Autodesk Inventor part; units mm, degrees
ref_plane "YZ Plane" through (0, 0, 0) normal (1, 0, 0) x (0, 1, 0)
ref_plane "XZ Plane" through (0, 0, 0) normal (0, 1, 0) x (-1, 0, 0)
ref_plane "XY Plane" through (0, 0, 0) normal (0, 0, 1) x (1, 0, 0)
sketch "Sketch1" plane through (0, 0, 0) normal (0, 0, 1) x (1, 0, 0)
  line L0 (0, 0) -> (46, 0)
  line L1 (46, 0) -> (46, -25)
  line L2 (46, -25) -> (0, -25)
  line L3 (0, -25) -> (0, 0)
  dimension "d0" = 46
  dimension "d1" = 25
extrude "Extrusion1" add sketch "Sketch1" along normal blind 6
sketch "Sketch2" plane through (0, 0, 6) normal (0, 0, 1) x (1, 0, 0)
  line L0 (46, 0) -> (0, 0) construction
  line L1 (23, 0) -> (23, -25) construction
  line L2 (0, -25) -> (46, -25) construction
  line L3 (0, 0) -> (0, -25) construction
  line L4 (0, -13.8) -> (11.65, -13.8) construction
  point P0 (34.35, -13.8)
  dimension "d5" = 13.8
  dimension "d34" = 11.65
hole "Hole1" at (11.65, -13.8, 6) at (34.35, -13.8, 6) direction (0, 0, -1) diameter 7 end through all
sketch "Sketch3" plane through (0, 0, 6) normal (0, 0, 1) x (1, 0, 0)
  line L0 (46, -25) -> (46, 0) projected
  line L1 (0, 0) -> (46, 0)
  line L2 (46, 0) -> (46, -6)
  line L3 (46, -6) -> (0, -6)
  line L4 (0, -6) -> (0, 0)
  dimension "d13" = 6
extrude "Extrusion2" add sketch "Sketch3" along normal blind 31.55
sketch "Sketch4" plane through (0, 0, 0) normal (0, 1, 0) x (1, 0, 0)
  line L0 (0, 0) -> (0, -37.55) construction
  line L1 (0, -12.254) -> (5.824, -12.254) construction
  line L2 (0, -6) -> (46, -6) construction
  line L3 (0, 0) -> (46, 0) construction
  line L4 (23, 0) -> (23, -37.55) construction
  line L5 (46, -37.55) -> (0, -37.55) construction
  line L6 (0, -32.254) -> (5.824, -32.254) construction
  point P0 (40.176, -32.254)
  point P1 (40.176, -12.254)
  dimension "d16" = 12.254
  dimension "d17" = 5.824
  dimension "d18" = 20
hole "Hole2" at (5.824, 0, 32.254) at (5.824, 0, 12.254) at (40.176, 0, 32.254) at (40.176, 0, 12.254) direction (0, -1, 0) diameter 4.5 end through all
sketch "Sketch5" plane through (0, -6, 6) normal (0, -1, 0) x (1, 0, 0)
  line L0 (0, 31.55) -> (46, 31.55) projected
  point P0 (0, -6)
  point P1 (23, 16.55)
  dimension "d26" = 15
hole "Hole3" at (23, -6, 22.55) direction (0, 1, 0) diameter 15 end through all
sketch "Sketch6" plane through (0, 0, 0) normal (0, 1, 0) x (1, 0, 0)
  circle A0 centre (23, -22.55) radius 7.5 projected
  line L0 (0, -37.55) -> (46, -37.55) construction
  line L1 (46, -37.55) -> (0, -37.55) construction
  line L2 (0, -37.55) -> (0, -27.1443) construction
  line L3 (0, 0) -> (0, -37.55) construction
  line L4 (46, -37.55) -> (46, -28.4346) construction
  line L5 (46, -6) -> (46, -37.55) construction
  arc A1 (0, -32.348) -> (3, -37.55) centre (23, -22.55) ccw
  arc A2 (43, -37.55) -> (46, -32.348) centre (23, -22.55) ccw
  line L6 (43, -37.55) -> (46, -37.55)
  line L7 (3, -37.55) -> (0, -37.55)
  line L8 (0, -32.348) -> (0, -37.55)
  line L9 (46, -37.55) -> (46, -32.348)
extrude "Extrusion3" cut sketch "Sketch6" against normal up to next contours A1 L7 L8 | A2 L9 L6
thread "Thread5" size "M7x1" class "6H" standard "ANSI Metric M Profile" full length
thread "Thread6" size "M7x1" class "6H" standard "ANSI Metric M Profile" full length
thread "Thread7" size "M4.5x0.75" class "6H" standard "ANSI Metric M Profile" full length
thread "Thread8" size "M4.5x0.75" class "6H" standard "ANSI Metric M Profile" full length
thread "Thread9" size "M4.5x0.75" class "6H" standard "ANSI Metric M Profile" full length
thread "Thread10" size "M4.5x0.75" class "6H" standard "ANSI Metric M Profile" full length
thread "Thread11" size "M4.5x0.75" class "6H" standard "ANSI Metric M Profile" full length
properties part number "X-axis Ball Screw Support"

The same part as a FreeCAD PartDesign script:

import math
import FreeCAD as App
import Part
import Sketcher
from FreeCAD import Vector
Q = App.Units.Quantity


def add_polygon(sketch, points):
    """Adds a closed chain of lines whose ends are joined by coincident constraints."""
    first, n = sketch.GeometryCount, len(points)
    for a, b in zip(points, points[1:] + points[:1]):
        sketch.addGeometry(Part.LineSegment(App.Vector(*a, 0), App.Vector(*b, 0)), False)
    for i in range(n):
        sketch.addConstraint(Sketcher.Constraint("Coincident", first + i, 2, first + (i + 1) % n, 1))

doc = App.newDocument("Part")
params = doc.addObject("Spreadsheet::Sheet", "Params")
for row, (alias, value) in enumerate([
    ("sketch1_width", "46 mm"),
    ("sketch1_height", "25 mm"),
    ("pad1_length", "6 mm"),
    ("sketch2_diameter", "7 mm"),
    ("hole_diameter", "7 mm"),
    ("sketch3_height", "6 mm"),
    ("sketch3_width", "46 mm"),
    ("pad2_length", "31.55 mm"),
    ("sketch4_diameter", "4.5 mm"),
    ("hole2_diameter", "4.5 mm"),
    ("sketch5_diameter", "15 mm"),
    ("hole3_diameter", "15 mm"),
    ("sketch6_width", "3 mm"),
], start=1):
    params.set(f"A{row}", alias)
    params.set(f"B{row}", "=" + value)
    params.setAlias(f"B{row}", alias)

body = doc.addObject("PartDesign::Body", "Body")

sketch1 = body.newObject("Sketcher::SketchObject", "Sketch")
sketch1.AttachmentSupport = (doc.getObject("XY_Plane"), [""])
sketch1.MapMode = "FlatFace"
add_polygon(sketch1, [(46, 0), (0, 0), (0, -25), (46, -25)])
sketch1.addConstraint(Sketcher.Constraint("Horizontal", 0))
sketch1.addConstraint(Sketcher.Constraint("Vertical", 1))
sketch1.addConstraint(Sketcher.Constraint("Horizontal", 2))
sketch1.addConstraint(Sketcher.Constraint("Vertical", 3))
sketch1.addConstraint(Sketcher.Constraint("Coincident", 0, 2, -1, 1))
sketch1.addConstraint(Sketcher.Constraint("DistanceX", 0, 2, 0, 1, Q("46 mm")))
sketch1.addConstraint(Sketcher.Constraint("DistanceY", 1, 2, 1, 1, Q("25 mm")))
sketch1.setExpression("Constraints[9]", "Params.sketch1_width")
sketch1.setExpression("Constraints[10]", "Params.sketch1_height")
pad1 = body.newObject("PartDesign::Pad", "Pad")
pad1.Profile = sketch1
pad1.setExpression("Length", "Params.pad1_length")

sketch2 = body.newObject("Sketcher::SketchObject", "Sketch001")
sketch2.AttachmentSupport = (doc.getObject("XY_Plane"), [""])
sketch2.MapMode = "FlatFace"
sketch2.AttachmentOffset = App.Placement(Vector(0, 0, 6), App.Rotation())
sketch2.addGeometry(Part.Circle(Vector(11.65, -13.8, 0), Vector(0, 0, 1), 3.5), False)
sketch2.addGeometry(Part.Circle(Vector(34.35, -13.8, 0), Vector(0, 0, 1), 3.5), False)
sketch2.addConstraint(Sketcher.Constraint("Equal", 0, 1))
sketch2.addConstraint(Sketcher.Constraint("Horizontal", 0, 3, 1, 3))
sketch2.addConstraint(Sketcher.Constraint("Diameter", 0, Q("7 mm")))
sketch2.addConstraint(Sketcher.Constraint("DistanceY", 0, 3, -1, 1, Q("13.8 mm")))
sketch2.addConstraint(Sketcher.Constraint("DistanceX", 0, 3, 1, 3, Q("22.7 mm")))
sketch2.addConstraint(Sketcher.Constraint("DistanceX", -1, 1, 0, 3, Q("11.65 mm")))
sketch2.setExpression("Constraints[2]", "Params.sketch2_diameter")
doc.recompute()
hole = body.newObject("PartDesign::Hole", "Hole")
hole.Profile = sketch2
hole.ThreadType = "None"
hole.setExpression("Diameter", "Params.hole_diameter")
hole.DepthType = "ThroughAll"

sketch3 = body.newObject("Sketcher::SketchObject", "Sketch002")
sketch3.AttachmentSupport = (doc.getObject("XY_Plane"), [""])
sketch3.MapMode = "FlatFace"
sketch3.AttachmentOffset = App.Placement(Vector(0, 0, 6), App.Rotation())
add_polygon(sketch3, [(0, -6), (46, -6), (46, 0), (0, 0)])
sketch3.addConstraint(Sketcher.Constraint("Horizontal", 0))
sketch3.addConstraint(Sketcher.Constraint("Vertical", 1))
sketch3.addConstraint(Sketcher.Constraint("Horizontal", 2))
sketch3.addConstraint(Sketcher.Constraint("Vertical", 3))
sketch3.addConstraint(Sketcher.Constraint("Coincident", 2, 2, -1, 1))
sketch3.addConstraint(Sketcher.Constraint("DistanceY", 1, 1, 1, 2, Q("6 mm")))
sketch3.addConstraint(Sketcher.Constraint("DistanceX", 0, 1, 0, 2, Q("46 mm")))
sketch3.setExpression("Constraints[9]", "Params.sketch3_height")
sketch3.setExpression("Constraints[10]", "Params.sketch3_width")
pad2 = body.newObject("PartDesign::Pad", "Pad001")
pad2.Profile = sketch3
pad2.setExpression("Length", "Params.pad2_length")

sketch4 = body.newObject("Sketcher::SketchObject", "Sketch003")
sketch4.AttachmentSupport = (doc.getObject("XZ_Plane"), [""])
sketch4.MapMode = "FlatFace"
sketch4.addGeometry(Part.Circle(Vector(5.824, 32.254, 0), Vector(0, 0, 1), 2.25), False)
sketch4.addGeometry(Part.Circle(Vector(5.824, 12.254, 0), Vector(0, 0, 1), 2.25), False)
sketch4.addGeometry(Part.Circle(Vector(40.176, 32.254, 0), Vector(0, 0, 1), 2.25), False)
sketch4.addGeometry(Part.Circle(Vector(40.176, 12.254, 0), Vector(0, 0, 1), 2.25), False)
sketch4.addConstraint(Sketcher.Constraint("Equal", 0, 1))
sketch4.addConstraint(Sketcher.Constraint("Equal", 1, 2))
sketch4.addConstraint(Sketcher.Constraint("Equal", 2, 3))
sketch4.addConstraint(Sketcher.Constraint("Horizontal", 0, 3, 2, 3))
sketch4.addConstraint(Sketcher.Constraint("Horizontal", 1, 3, 3, 3))
sketch4.addConstraint(Sketcher.Constraint("Vertical", 0, 3, 1, 3))
sketch4.addConstraint(Sketcher.Constraint("Vertical", 2, 3, 3, 3))
sketch4.addConstraint(Sketcher.Constraint("Diameter", 0, Q("4.5 mm")))
sketch4.addConstraint(Sketcher.Constraint("DistanceY", 1, 3, 0, 3, Q("20 mm")))
sketch4.addConstraint(Sketcher.Constraint("DistanceX", -1, 1, 0, 3, Q("5.824 mm")))
sketch4.addConstraint(Sketcher.Constraint("DistanceY", -1, 1, 0, 3, Q("32.254 mm")))
sketch4.addConstraint(Sketcher.Constraint("DistanceX", -1, 1, 2, 3, Q("40.176 mm")))
sketch4.setExpression("Constraints[7]", "Params.sketch4_diameter")
doc.recompute()
hole2 = body.newObject("PartDesign::Hole", "Hole001")
hole2.Profile = sketch4
hole2.ThreadType = "None"
hole2.setExpression("Diameter", "Params.hole2_diameter")
hole2.DepthType = "ThroughAll"
hole2.Reversed = True

sketch5 = body.newObject("Sketcher::SketchObject", "Sketch004")
sketch5.AttachmentSupport = (doc.getObject("XZ_Plane"), [""])
sketch5.MapMode = "FlatFace"
sketch5.AttachmentOffset = App.Placement(Vector(0, 0, 6), App.Rotation())
sketch5.addGeometry(Part.Circle(Vector(23, 22.55, 0), Vector(0, 0, 1), 7.5), False)
sketch5.addConstraint(Sketcher.Constraint("Diameter", 0, Q("15 mm")))
sketch5.addConstraint(Sketcher.Constraint("DistanceX", -1, 1, 0, 3, Q("23 mm")))
sketch5.addConstraint(Sketcher.Constraint("DistanceY", -1, 1, 0, 3, Q("22.55 mm")))
sketch5.setExpression("Constraints[0]", "Params.sketch5_diameter")
doc.recompute()
hole3 = body.newObject("PartDesign::Hole", "Hole002")
hole3.Profile = sketch5
hole3.ThreadType = "None"
hole3.setExpression("Diameter", "Params.hole3_diameter")
hole3.DepthType = "ThroughAll"

sketch6 = body.newObject("Sketcher::SketchObject", "Sketch005")
sketch6.AttachmentSupport = (doc.getObject("XZ_Plane"), [""])
sketch6.MapMode = "FlatFace"
sketch6.addGeometry(Part.ArcOfCircle(Part.Circle(Vector(22.999004, 22.550497, 0), Vector(0, 0, 1), 24.998905), math.radians(143.129644), math.radians(156.926149)), False)
sketch6.addGeometry(Part.LineSegment(Vector(0, 32.348, 0), Vector(0, 37.55, 0)), False)
sketch6.addGeometry(Part.LineSegment(Vector(0, 37.55, 0), Vector(3, 37.55, 0)), False)
sketch6.addGeometry(Part.ArcOfCircle(Part.Circle(Vector(22.999071, 22.549387, 0), Vector(0, 0, 1), 25.001111), math.radians(23.074463), math.radians(36.869744)), False)
sketch6.addGeometry(Part.LineSegment(Vector(43, 37.55, 0), Vector(46, 37.55, 0)), False)
sketch6.addGeometry(Part.LineSegment(Vector(46, 37.55, 0), Vector(46, 32.348, 0)), False)
sketch6.addConstraint(Sketcher.Constraint("Coincident", 0, 2, 1, 1))
sketch6.addConstraint(Sketcher.Constraint("Coincident", 1, 2, 2, 1))
sketch6.addConstraint(Sketcher.Constraint("Coincident", 2, 2, 0, 1))
sketch6.addConstraint(Sketcher.Constraint("Coincident", 3, 2, 4, 1))
sketch6.addConstraint(Sketcher.Constraint("Coincident", 4, 2, 5, 1))
sketch6.addConstraint(Sketcher.Constraint("Coincident", 5, 2, 3, 1))
sketch6.addConstraint(Sketcher.Constraint("Vertical", 1))
sketch6.addConstraint(Sketcher.Constraint("Horizontal", 2))
sketch6.addConstraint(Sketcher.Constraint("Horizontal", 4))
sketch6.addConstraint(Sketcher.Constraint("Vertical", 5))
sketch6.addConstraint(Sketcher.Constraint("PointOnObject", 0, 2, -2))
sketch6.addConstraint(Sketcher.Constraint("Horizontal", 2, 2, 3, 2))
sketch6.addConstraint(Sketcher.Constraint("Horizontal", 0, 2, 5, 2))
sketch6.addConstraint(Sketcher.Constraint("Vertical", 0, 3, 3, 3))
sketch6.addConstraint(Sketcher.Constraint("Equal", 2, 4))
sketch6.addConstraint(Sketcher.Constraint("DistanceX", 2, 1, 2, 2, Q("3 mm")))
sketch6.addConstraint(Sketcher.Constraint("DistanceX", -1, 1, 3, 2, Q("43 mm")))
sketch6.addConstraint(Sketcher.Constraint("Radius", 0, Q("24.999 mm")))
sketch6.addConstraint(Sketcher.Constraint("Radius", 3, Q("25.001 mm")))
sketch6.addConstraint(Sketcher.Constraint("DistanceY", -1, 1, 1, 2, Q("37.55 mm")))
sketch6.setExpression("Constraints[15]", "Params.sketch6_width")
pocket1 = body.newObject("PartDesign::Pocket", "Pocket")
pocket1.Profile = sketch6
pocket1.Type = "UpToFirst"
pocket1.Reversed = True

doc.recompute()
